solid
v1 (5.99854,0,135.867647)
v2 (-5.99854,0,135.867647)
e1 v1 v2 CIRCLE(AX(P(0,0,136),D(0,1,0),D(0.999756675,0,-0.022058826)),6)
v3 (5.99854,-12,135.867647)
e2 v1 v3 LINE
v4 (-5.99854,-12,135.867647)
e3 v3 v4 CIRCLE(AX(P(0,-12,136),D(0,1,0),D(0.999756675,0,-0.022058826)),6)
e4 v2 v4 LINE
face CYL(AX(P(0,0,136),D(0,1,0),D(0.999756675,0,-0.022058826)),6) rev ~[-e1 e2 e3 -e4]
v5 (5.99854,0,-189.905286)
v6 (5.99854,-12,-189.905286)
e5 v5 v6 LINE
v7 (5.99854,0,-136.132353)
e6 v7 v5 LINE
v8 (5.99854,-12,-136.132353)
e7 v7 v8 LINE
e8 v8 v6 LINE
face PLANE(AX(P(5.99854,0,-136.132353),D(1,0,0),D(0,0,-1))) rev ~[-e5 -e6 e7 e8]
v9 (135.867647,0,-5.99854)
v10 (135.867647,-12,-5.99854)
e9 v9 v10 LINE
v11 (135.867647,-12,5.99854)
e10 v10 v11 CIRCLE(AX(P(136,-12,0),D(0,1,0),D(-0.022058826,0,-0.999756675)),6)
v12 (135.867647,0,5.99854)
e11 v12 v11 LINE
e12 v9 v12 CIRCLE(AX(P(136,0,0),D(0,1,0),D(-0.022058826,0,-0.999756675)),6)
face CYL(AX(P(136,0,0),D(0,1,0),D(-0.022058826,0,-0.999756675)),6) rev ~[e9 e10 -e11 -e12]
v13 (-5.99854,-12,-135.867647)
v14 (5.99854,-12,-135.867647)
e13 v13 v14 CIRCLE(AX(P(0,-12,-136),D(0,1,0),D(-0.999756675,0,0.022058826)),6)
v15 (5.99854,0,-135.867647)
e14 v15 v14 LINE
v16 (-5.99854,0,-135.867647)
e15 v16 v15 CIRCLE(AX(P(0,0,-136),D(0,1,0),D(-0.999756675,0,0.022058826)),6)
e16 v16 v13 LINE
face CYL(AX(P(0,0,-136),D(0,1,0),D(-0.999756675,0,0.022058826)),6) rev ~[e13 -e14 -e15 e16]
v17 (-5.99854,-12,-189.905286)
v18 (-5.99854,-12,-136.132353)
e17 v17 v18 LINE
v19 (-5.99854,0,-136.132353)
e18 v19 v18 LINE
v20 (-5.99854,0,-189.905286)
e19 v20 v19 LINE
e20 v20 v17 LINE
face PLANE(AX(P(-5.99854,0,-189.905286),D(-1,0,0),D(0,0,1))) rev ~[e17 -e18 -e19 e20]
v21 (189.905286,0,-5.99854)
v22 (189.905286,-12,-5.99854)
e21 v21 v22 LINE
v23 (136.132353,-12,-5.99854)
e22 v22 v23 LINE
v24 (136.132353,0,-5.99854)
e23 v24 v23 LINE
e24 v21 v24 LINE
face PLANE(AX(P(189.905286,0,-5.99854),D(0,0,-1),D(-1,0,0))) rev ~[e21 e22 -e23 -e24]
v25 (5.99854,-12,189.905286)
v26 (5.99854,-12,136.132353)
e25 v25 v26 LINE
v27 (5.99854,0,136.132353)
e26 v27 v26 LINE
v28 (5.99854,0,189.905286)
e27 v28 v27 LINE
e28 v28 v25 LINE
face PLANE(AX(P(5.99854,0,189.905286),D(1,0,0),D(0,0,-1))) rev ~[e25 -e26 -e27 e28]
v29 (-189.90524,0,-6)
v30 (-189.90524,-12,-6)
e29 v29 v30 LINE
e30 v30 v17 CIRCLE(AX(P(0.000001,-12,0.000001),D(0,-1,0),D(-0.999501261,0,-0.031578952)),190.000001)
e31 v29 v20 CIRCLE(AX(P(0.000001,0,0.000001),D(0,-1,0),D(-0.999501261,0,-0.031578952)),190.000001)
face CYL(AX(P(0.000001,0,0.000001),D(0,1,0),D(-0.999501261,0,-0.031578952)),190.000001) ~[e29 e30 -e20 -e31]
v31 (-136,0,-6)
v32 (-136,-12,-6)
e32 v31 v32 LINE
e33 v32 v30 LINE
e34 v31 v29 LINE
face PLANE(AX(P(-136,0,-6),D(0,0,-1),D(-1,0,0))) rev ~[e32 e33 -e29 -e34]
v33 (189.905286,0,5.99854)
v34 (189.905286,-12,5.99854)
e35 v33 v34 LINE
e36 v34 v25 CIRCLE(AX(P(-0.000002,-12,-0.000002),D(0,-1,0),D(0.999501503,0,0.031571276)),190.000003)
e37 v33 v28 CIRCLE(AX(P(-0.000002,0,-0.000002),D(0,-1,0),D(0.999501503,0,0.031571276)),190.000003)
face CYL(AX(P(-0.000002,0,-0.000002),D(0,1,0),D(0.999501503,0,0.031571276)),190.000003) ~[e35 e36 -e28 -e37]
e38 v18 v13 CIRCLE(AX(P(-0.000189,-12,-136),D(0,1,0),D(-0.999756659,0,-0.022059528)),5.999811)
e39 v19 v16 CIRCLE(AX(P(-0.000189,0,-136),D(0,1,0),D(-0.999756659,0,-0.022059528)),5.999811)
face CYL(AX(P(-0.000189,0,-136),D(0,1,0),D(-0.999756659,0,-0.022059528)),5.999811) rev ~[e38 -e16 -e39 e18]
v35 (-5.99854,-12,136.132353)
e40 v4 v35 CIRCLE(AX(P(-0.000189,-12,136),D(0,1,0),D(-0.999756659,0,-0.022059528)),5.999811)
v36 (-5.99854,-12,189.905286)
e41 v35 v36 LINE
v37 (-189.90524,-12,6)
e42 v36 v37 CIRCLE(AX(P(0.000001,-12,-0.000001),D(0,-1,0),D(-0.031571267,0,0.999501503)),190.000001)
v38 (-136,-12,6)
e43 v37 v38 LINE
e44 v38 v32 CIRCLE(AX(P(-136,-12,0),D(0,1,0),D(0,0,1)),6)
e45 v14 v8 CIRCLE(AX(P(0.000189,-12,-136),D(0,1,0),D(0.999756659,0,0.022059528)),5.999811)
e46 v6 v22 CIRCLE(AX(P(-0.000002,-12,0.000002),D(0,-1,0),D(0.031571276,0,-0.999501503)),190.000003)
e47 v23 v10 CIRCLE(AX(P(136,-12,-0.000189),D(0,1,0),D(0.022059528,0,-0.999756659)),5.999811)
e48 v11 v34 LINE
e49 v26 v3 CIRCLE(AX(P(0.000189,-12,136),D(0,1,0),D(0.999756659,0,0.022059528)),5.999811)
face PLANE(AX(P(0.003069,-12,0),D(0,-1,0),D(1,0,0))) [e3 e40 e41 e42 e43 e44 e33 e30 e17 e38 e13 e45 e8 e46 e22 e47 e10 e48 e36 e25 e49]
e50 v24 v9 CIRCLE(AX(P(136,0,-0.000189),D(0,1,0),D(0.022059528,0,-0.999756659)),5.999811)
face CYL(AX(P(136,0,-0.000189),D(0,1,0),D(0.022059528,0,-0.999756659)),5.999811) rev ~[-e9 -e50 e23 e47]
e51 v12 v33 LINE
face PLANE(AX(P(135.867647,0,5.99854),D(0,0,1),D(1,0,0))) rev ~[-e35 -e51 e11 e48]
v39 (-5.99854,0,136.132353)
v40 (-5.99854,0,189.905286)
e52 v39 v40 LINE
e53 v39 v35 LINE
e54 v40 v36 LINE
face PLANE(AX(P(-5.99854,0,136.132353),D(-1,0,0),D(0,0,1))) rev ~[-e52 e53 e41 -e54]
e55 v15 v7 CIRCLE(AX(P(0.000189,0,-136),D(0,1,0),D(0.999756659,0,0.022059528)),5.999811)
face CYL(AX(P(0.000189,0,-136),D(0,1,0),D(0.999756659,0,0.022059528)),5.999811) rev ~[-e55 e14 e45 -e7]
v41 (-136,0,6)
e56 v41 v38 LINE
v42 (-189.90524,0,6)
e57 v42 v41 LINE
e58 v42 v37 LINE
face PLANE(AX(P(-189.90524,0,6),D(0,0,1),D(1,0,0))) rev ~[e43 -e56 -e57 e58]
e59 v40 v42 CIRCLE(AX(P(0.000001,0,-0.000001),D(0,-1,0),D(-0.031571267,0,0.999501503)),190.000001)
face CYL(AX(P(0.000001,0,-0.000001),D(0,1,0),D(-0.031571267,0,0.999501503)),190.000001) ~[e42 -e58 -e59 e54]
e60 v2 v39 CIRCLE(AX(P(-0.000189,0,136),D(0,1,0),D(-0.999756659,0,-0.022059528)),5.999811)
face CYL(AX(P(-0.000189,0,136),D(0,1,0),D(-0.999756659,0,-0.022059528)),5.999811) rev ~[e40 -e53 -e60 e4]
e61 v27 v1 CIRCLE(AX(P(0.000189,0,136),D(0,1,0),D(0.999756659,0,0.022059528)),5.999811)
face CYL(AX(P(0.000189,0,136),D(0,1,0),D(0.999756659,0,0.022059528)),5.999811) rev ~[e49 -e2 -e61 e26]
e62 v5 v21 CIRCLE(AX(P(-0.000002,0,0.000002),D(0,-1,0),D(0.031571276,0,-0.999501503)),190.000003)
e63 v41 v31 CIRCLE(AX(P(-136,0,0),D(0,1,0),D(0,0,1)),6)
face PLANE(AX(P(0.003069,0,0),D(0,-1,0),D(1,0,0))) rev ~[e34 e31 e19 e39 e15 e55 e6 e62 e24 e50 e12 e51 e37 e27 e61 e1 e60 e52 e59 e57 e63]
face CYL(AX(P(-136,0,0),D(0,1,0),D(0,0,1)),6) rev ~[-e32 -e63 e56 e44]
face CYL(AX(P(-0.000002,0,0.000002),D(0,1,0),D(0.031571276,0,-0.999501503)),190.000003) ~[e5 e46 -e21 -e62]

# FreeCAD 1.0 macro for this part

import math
import FreeCAD as App
import Part
import Sketcher

doc = App.newDocument("Part")
body = doc.addObject("PartDesign::Body", "Body")

# Sketch on XZ plane
sketch1 = body.newObject("Sketcher::SketchObject", "Sketch")
sketch1.AttachmentSupport = (doc.getObject("XZ_Plane"), [""])
sketch1.MapMode = "FlatFace"
sketch1.addGeometry(Part.LineSegment(App.Vector(-5.99854, 136.132353, 0), App.Vector(-5.99854, 189.905286, 0)), False)
sketch1.addGeometry(Part.ArcOfCircle(Part.Circle(App.Vector(0.000001, -0.000001, 0), App.Vector(0, 0, 1), 190.000001), math.radians(91.809201), math.radians(178.190358)), False)
sketch1.addGeometry(Part.LineSegment(App.Vector(-189.90524, 6, 0), App.Vector(-136, 6, 0)), False)
sketch1.addGeometry(Part.ArcOfCircle(Part.Circle(App.Vector(-136, 0, 0), App.Vector(0, 0, 1), 6), math.radians(-90), math.radians(90)), False)
sketch1.addGeometry(Part.LineSegment(App.Vector(-136, -6, 0), App.Vector(-189.90524, -6, 0)), False)
sketch1.addGeometry(Part.ArcOfCircle(Part.Circle(App.Vector(0.000001, 0.000001, 0), App.Vector(0, 0, 1), 190.000001), math.radians(-178.190358), math.radians(-91.809201)), False)
sketch1.addGeometry(Part.LineSegment(App.Vector(-5.99854, -189.905286, 0), App.Vector(-5.99854, -136.132353, 0)), False)
sketch1.addGeometry(Part.ArcOfCircle(Part.Circle(App.Vector(-0.000189, -136, 0), App.Vector(0, 0, 1), 5.999811), math.radians(178.73598), math.radians(181.26402)), False)
sketch1.addGeometry(Part.ArcOfCircle(Part.Circle(App.Vector(0, -136, 0), App.Vector(0, 0, 1), 6), math.radians(1.26398), math.radians(178.73602)), False)
sketch1.addGeometry(Part.ArcOfCircle(Part.Circle(App.Vector(0.000189, -136, 0), App.Vector(0, 0, 1), 5.999811), math.radians(-1.26402), math.radians(1.26402)), False)
sketch1.addGeometry(Part.LineSegment(App.Vector(5.99854, -136.132353, 0), App.Vector(5.99854, -189.905286, 0)), False)
sketch1.addGeometry(Part.ArcOfCircle(Part.Circle(App.Vector(-0.000002, 0.000002, 0), App.Vector(0, 0, 1), 190.000003), math.radians(-88.190799), math.radians(-1.809201)), False)
sketch1.addGeometry(Part.LineSegment(App.Vector(189.905286, -5.99854, 0), App.Vector(136.132353, -5.99854, 0)), False)
sketch1.addGeometry(Part.ArcOfCircle(Part.Circle(App.Vector(136, -0.000189, 0), App.Vector(0, 0, 1), 5.999811), math.radians(-91.26402), math.radians(-88.73598)), False)
sketch1.addGeometry(Part.ArcOfCircle(Part.Circle(App.Vector(136, 0, 0), App.Vector(0, 0, 1), 6), math.radians(91.26398), math.radians(268.73602)), False)
sketch1.addGeometry(Part.LineSegment(App.Vector(135.867647, 5.99854, 0), App.Vector(189.905286, 5.99854, 0)), False)
sketch1.addGeometry(Part.ArcOfCircle(Part.Circle(App.Vector(-0.000002, -0.000002, 0), App.Vector(0, 0, 1), 190.000003), math.radians(1.809201), math.radians(88.190799)), False)
sketch1.addGeometry(Part.LineSegment(App.Vector(5.99854, 189.905286, 0), App.Vector(5.99854, 136.132353, 0)), False)
sketch1.addGeometry(Part.ArcOfCircle(Part.Circle(App.Vector(0.000189, 136, 0), App.Vector(0, 0, 1), 5.999811), math.radians(-1.26402), math.radians(1.26402)), False)
sketch1.addGeometry(Part.ArcOfCircle(Part.Circle(App.Vector(0, 136, 0), App.Vector(0, 0, 1), 6), math.radians(-178.73602), math.radians(-1.26398)), False)
sketch1.addGeometry(Part.ArcOfCircle(Part.Circle(App.Vector(-0.000189, 136, 0), App.Vector(0, 0, 1), 5.999811), math.radians(178.73598), math.radians(181.26402)), False)
sketch1.addConstraint(Sketcher.Constraint("Coincident", 0, 2, 1, 1))
sketch1.addConstraint(Sketcher.Constraint("Coincident", 1, 2, 2, 1))
sketch1.addConstraint(Sketcher.Constraint("Coincident", 2, 2, 3, 2))
sketch1.addConstraint(Sketcher.Constraint("Coincident", 3, 1, 4, 1))
sketch1.addConstraint(Sketcher.Constraint("Coincident", 4, 2, 5, 1))
sketch1.addConstraint(Sketcher.Constraint("Coincident", 5, 2, 6, 1))
sketch1.addConstraint(Sketcher.Constraint("Coincident", 6, 2, 7, 2))
sketch1.addConstraint(Sketcher.Constraint("Coincident", 7, 1, 8, 2))
sketch1.addConstraint(Sketcher.Constraint("Coincident", 8, 1, 9, 2))
sketch1.addConstraint(Sketcher.Constraint("Coincident", 9, 1, 10, 1))
sketch1.addConstraint(Sketcher.Constraint("Coincident", 10, 2, 11, 1))
sketch1.addConstraint(Sketcher.Constraint("Coincident", 11, 2, 12, 1))
sketch1.addConstraint(Sketcher.Constraint("Coincident", 12, 2, 13, 2))
sketch1.addConstraint(Sketcher.Constraint("Coincident", 13, 1, 14, 2))
sketch1.addConstraint(Sketcher.Constraint("Coincident", 14, 1, 15, 1))
sketch1.addConstraint(Sketcher.Constraint("Coincident", 15, 2, 16, 1))
sketch1.addConstraint(Sketcher.Constraint("Coincident", 16, 2, 17, 1))
sketch1.addConstraint(Sketcher.Constraint("Coincident", 17, 2, 18, 2))
sketch1.addConstraint(Sketcher.Constraint("Coincident", 18, 1, 19, 2))
sketch1.addConstraint(Sketcher.Constraint("Coincident", 19, 1, 20, 2))
sketch1.addConstraint(Sketcher.Constraint("Coincident", 20, 1, 0, 1))
sketch1.addConstraint(Sketcher.Constraint("Vertical", 0))
sketch1.addConstraint(Sketcher.Constraint("Horizontal", 2))
sketch1.addConstraint(Sketcher.Constraint("Horizontal", 4))
sketch1.addConstraint(Sketcher.Constraint("Vertical", 6))
sketch1.addConstraint(Sketcher.Constraint("Vertical", 10))
sketch1.addConstraint(Sketcher.Constraint("Horizontal", 12))
sketch1.addConstraint(Sketcher.Constraint("Horizontal", 15))
sketch1.addConstraint(Sketcher.Constraint("Vertical", 17))
sketch1.addConstraint(Sketcher.Constraint("Coincident", 1, 3, -1, 1))
sketch1.addConstraint(Sketcher.Constraint("Coincident", 5, 3, -1, 1))
sketch1.addConstraint(Sketcher.Constraint("Coincident", 11, 3, -1, 1))
sketch1.addConstraint(Sketcher.Constraint("Coincident", 16, 3, -1, 1))
sketch1.addConstraint(Sketcher.Constraint("PointOnObject", 3, 3, -1))
sketch1.addConstraint(Sketcher.Constraint("PointOnObject", 8, 3, -2))
sketch1.addConstraint(Sketcher.Constraint("PointOnObject", 14, 3, -1))
sketch1.addConstraint(Sketcher.Constraint("PointOnObject", 19, 3, -2))
sketch1.addConstraint(Sketcher.Constraint("Radius", 1, 190.000001))
sketch1.addConstraint(Sketcher.Constraint("Radius", 3, 6.0))
sketch1.addConstraint(Sketcher.Constraint("Radius", 5, 190.000001))
sketch1.addConstraint(Sketcher.Constraint("Radius", 8, 6.0))
sketch1.addConstraint(Sketcher.Constraint("Radius", 14, 6.0))
sketch1.addConstraint(Sketcher.Constraint("Radius", 19, 6.0))
sketch1.addConstraint(Sketcher.Constraint("DistanceX", 3, 3, -1, 1, 136.0))
sketch1.addConstraint(Sketcher.Constraint("DistanceY", 7, 3, -1, 1, 136.0))
sketch1.addConstraint(Sketcher.Constraint("DistanceY", 8, 3, -1, 1, 136.0))
sketch1.addConstraint(Sketcher.Constraint("DistanceY", 9, 3, -1, 1, 136.0))
sketch1.addConstraint(Sketcher.Constraint("DistanceX", -1, 1, 13, 3, 136.0))
sketch1.addConstraint(Sketcher.Constraint("DistanceX", -1, 1, 14, 3, 136.0))
sketch1.addConstraint(Sketcher.Constraint("DistanceY", -1, 1, 18, 3, 136.0))
sketch1.addConstraint(Sketcher.Constraint("DistanceY", -1, 1, 19, 3, 136.0))
sketch1.addConstraint(Sketcher.Constraint("DistanceY", -1, 1, 20, 3, 136.0))
sketch1.addConstraint(Sketcher.Constraint("DistanceX", 2, 2, -1, 1, 136.0))
sketch1.addConstraint(Sketcher.Constraint("DistanceX", 3, 1, -1, 1, 136.0))
sketch1.addConstraint(Sketcher.Constraint("Radius", 7, 5.999811))
sketch1.addConstraint(Sketcher.Constraint("Radius", 9, 5.999811))
sketch1.addConstraint(Sketcher.Constraint("Radius", 13, 5.999811))
sketch1.addConstraint(Sketcher.Constraint("Radius", 18, 5.999811))
sketch1.addConstraint(Sketcher.Constraint("Radius", 20, 5.999811))
sketch1.addConstraint(Sketcher.Constraint("Radius", 11, 190.000003))
sketch1.addConstraint(Sketcher.Constraint("Radius", 16, 190.000003))
sketch1.addConstraint(Sketcher.Constraint("DistanceX", 15, 1, 15, 2, 54.037639))
sketch1.addConstraint(Sketcher.Constraint("DistanceX", 12, 2, 12, 1, 53.772933))
sketch1.addConstraint(Sketcher.Constraint("DistanceY", 0, 1, 0, 2, 53.772933))
sketch1.addConstraint(Sketcher.Constraint("DistanceY", 6, 1, 6, 2, 53.772933))
sketch1.addConstraint(Sketcher.Constraint("DistanceY", 10, 2, 10, 1, 53.772933))
sketch1.addConstraint(Sketcher.Constraint("DistanceY", 17, 2, 17, 1, 53.772933))
sketch1.addConstraint(Sketcher.Constraint("DistanceX", 7, 1, -1, 1, 5.99854))
sketch1.addConstraint(Sketcher.Constraint("DistanceX", -1, 1, 8, 1, 5.99854))
sketch1.addConstraint(Sketcher.Constraint("DistanceY", 13, 1, -1, 1, 5.99854))
sketch1.addConstraint(Sketcher.Constraint("DistanceX", -1, 1, 18, 1, 5.99854))
sketch1.addConstraint(Sketcher.Constraint("DistanceX", 19, 1, -1, 1, 5.99854))
pad1 = body.newObject("PartDesign::Pad", "Pad")
pad1.Profile = sketch1
pad1.Length = 12

doc.recompute()
